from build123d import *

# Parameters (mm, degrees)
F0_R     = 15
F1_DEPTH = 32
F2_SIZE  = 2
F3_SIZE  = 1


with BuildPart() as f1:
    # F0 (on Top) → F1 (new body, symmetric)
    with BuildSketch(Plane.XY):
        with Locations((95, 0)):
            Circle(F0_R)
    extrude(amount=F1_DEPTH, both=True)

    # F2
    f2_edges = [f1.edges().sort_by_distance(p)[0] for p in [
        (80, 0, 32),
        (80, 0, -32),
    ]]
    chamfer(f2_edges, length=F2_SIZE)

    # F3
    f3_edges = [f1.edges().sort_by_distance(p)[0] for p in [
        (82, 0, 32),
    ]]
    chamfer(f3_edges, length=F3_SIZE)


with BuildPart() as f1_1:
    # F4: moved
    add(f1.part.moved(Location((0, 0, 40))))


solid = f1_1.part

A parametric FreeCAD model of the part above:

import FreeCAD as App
import Part
import Sketcher

V = App.Vector


def edges_at(feature, points):
    """Names of the edges that pass closest to the given points."""
    edges = feature.Shape.Edges
    near = lambda p: min(range(len(edges)), key=lambda i: edges[i].distToShape(Part.Vertex(*p))[0])
    return sorted({f"Edge{near(p) + 1}" for p in points})

doc = App.newDocument("Part")
params = doc.addObject("Spreadsheet::Sheet", "Params")
for row, (alias, value) in enumerate([
    ("sketch1_diameter", "30 mm"),
    ("pad1_length", "64 mm"),
    ("chamfer_size", "2 mm"),
    ("chamfer2_size", "1 mm"),
], start=1):
    params.set(f"A{row}", alias)
    params.set(f"B{row}", "=" + value)
    params.setAlias(f"B{row}", alias)

body = doc.addObject("PartDesign::Body", "Body")

# Sketch on XY plane
sketch1 = body.newObject("Sketcher::SketchObject", "Sketch")
sketch1.AttachmentSupport = (doc.getObject("XY_Plane"), [""])
sketch1.MapMode = "FlatFace"
sketch1.addGeometry(Part.Circle(V(95, 0, 0), V(0, 0, 1), 15), False)
sketch1.addConstraint([
    Sketcher.Constraint("PointOnObject", 0, 3, -1),
    Sketcher.Constraint("Diameter", 0, 30.0),
    Sketcher.Constraint("DistanceX", -1, 1, 0, 3, 95.0),
])
sketch1.setExpression("Constraints[1]", "Params.sketch1_diameter")
pad1 = body.newObject("PartDesign::Pad", "Pad")
pad1.Profile = sketch1
pad1.setExpression("Length", "Params.pad1_length")
pad1.Midplane = True
doc.recompute()

chamfer = body.newObject("PartDesign::Chamfer", "Chamfer")
chamfer.Base = (pad1, edges_at(pad1, [(80, 0, 32), (80, 0, -32)]))
chamfer.setExpression("Size", "Params.chamfer_size")
doc.recompute()

chamfer2 = body.newObject("PartDesign::Chamfer", "Chamfer001")
chamfer2.Base = (chamfer, edges_at(chamfer, [(82, 0, 32)]))
chamfer2.setExpression("Size", "Params.chamfer2_size")
body2 = doc.addObject("PartDesign::Body", "Body001")
doc.recompute()

body.Placement = App.Placement(V(0, 0, 40), App.Rotation(V(0, 0, 1), 0))
boolean = body2.newObject("PartDesign::Boolean", "Boolean")
boolean.Type = "Fuse"
boolean.addObjects([body])

doc.recompute()
